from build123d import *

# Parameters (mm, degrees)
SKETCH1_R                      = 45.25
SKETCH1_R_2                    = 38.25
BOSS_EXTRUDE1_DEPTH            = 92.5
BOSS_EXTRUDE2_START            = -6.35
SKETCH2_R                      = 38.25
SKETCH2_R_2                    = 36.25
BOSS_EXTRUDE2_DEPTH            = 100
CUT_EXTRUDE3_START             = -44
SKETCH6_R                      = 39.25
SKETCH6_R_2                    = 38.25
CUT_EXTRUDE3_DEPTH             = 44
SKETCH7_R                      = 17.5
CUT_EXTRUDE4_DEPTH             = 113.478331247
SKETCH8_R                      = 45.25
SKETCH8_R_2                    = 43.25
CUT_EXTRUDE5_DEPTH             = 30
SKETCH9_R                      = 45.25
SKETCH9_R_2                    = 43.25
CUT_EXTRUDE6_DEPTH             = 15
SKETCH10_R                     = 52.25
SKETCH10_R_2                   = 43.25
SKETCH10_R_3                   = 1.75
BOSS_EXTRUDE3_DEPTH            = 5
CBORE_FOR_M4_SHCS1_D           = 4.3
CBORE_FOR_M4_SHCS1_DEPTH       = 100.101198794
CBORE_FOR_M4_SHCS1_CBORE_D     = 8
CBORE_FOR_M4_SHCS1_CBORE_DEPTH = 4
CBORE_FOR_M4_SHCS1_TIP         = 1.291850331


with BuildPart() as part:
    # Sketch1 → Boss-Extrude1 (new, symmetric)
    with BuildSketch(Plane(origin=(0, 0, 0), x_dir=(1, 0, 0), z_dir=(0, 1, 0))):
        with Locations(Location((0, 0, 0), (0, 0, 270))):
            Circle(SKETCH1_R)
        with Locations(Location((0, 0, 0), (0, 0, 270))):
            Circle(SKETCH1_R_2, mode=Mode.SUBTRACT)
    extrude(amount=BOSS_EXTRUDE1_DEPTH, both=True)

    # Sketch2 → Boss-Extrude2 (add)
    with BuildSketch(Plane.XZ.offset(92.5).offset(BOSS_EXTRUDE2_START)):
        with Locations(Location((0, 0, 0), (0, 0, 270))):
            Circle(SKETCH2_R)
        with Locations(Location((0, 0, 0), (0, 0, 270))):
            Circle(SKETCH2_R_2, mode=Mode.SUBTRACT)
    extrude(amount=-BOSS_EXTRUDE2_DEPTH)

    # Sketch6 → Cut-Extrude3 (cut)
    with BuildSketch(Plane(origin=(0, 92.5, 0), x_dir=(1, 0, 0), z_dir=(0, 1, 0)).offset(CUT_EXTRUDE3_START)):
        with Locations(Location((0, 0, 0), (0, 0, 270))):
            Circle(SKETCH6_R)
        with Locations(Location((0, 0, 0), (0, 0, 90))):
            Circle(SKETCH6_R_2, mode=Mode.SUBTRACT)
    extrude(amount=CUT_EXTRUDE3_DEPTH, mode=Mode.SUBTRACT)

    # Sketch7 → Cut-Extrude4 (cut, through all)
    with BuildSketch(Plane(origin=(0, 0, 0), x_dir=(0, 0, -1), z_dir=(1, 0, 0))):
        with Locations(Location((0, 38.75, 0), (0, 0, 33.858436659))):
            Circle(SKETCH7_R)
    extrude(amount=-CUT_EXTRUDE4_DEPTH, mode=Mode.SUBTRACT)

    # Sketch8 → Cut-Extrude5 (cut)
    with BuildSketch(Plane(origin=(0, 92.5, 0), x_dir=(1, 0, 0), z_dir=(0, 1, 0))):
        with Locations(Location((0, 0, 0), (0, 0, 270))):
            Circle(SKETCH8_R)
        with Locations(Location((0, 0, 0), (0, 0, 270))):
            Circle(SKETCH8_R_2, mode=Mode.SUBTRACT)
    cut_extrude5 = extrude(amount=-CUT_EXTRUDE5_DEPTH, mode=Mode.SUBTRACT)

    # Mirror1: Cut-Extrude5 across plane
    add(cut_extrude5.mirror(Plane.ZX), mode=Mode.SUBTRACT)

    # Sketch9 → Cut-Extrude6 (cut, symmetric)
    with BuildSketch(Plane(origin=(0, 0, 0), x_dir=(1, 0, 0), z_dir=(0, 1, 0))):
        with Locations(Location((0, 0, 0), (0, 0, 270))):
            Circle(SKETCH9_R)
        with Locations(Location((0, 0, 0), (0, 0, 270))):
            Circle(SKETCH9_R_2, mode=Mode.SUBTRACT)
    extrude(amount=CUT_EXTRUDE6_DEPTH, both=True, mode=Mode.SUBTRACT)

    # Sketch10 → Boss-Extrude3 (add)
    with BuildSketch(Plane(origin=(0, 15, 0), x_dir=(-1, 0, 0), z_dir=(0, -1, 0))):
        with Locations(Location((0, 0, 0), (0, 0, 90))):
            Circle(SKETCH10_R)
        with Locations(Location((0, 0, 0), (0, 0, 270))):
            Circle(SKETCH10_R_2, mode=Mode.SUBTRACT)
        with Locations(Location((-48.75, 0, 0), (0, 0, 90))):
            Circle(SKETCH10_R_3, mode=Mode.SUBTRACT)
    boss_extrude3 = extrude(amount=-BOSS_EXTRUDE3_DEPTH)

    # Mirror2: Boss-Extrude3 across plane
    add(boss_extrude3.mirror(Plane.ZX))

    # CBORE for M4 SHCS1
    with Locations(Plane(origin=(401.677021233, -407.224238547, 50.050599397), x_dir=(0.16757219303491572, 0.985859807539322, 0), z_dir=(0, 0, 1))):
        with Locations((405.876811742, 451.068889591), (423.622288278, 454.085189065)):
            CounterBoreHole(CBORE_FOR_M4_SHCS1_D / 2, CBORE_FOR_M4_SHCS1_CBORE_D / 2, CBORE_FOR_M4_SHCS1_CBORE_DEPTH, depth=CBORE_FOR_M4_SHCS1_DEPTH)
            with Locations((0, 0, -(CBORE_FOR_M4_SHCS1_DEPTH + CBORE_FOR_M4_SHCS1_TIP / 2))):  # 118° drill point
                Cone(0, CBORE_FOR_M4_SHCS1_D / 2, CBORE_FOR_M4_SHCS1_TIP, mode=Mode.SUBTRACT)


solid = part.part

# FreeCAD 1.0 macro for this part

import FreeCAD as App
import Part
import Sketcher
from FreeCAD import Vector
Q = App.Units.Quantity

doc = App.newDocument("Part")
body = doc.addObject("PartDesign::Body", "Body")

# Sketch on XZ plane
sketch1 = body.newObject("Sketcher::SketchObject", "Sketch")
sketch1.AttachmentSupport = (doc.getObject("XZ_Plane"), [""])
sketch1.MapMode = "FlatFace"
sketch1.addGeometry([
    Part.Circle(Vector(0, 0, 0), Vector(0, 0, 1), 45.25),
    Part.Circle(Vector(0, 0, 0), Vector(0, 0, 1), 38.25),
], False)
sketch1.addConstraint([
    Sketcher.Constraint("Coincident", 0, 3, -1, 1),
    Sketcher.Constraint("Coincident", 1, 3, -1, 1),
    Sketcher.Constraint("Diameter", 0, Q("90.5 mm")),
    Sketcher.Constraint("Diameter", 1, Q("76.5 mm")),
])
pad1 = body.newObject("PartDesign::Pad", "Pad")
pad1.Profile = sketch1
pad1.Length = 185
pad1.Midplane = True

# Sketch on XZ plane
sketch2 = body.newObject("Sketcher::SketchObject", "Sketch001")
sketch2.AttachmentSupport = (doc.getObject("XZ_Plane"), [""])
sketch2.MapMode = "FlatFace"
sketch2.AttachmentOffset = App.Placement(Vector(0, 0, 86.15), App.Rotation())
sketch2.addGeometry([
    Part.Circle(Vector(0, 0, 0), Vector(0, 0, 1), 38.25),
    Part.Circle(Vector(0, 0, 0), Vector(0, 0, 1), 36.25),
], False)
sketch2.addConstraint([
    Sketcher.Constraint("Coincident", 0, 3, -1, 1),
    Sketcher.Constraint("Coincident", 1, 3, -1, 1),
    Sketcher.Constraint("Diameter", 0, Q("76.5 mm")),
    Sketcher.Constraint("Diameter", 1, Q("72.5 mm")),
])
pad2 = body.newObject("PartDesign::Pad", "Pad001")
pad2.Profile = sketch2
pad2.Length = 100
pad2.Reversed = True

# Sketch on XZ plane
sketch3 = body.newObject("Sketcher::SketchObject", "Sketch002")
sketch3.AttachmentSupport = (doc.getObject("XZ_Plane"), [""])
sketch3.MapMode = "FlatFace"
sketch3.AttachmentOffset = App.Placement(Vector(0, 0, -48.5), App.Rotation())
sketch3.addGeometry([
    Part.Circle(Vector(0, 0, 0), Vector(0, 0, 1), 39.25),
    Part.Circle(Vector(0, 0, 0), Vector(0, 0, 1), 38.25),
], False)
sketch3.addConstraint([
    Sketcher.Constraint("Coincident", 0, 3, -1, 1),
    Sketcher.Constraint("Coincident", 1, 3, -1, 1),
    Sketcher.Constraint("Diameter", 0, Q("78.5 mm")),
    Sketcher.Constraint("Diameter", 1, Q("76.5 mm")),
])
pocket1 = body.newObject("PartDesign::Pocket", "Pocket")
pocket1.Profile = sketch3
pocket1.Length = 44

# Sketch on YZ plane
sketch4 = body.newObject("Sketcher::SketchObject", "Sketch003")
sketch4.AttachmentSupport = (doc.getObject("YZ_Plane"), [""])
sketch4.MapMode = "FlatFace"
sketch4.addGeometry(Part.Circle(Vector(38.75, 0, 0), Vector(0, 0, 1), 17.5), False)
sketch4.addConstraint([
    Sketcher.Constraint("PointOnObject", 0, 3, -1),
    Sketcher.Constraint("Diameter", 0, Q("35 mm")),
    Sketcher.Constraint("DistanceX", -1, 1, 0, 3, Q("38.75 mm")),
])
pocket2 = body.newObject("PartDesign::Pocket", "Pocket001")
pocket2.Profile = sketch4
pocket2.Type = "ThroughAll"

# Sketch on XZ plane
sketch5 = body.newObject("Sketcher::SketchObject", "Sketch004")
sketch5.AttachmentSupport = (doc.getObject("XZ_Plane"), [""])
sketch5.MapMode = "FlatFace"
sketch5.AttachmentOffset = App.Placement(Vector(0, 0, -92.5), App.Rotation())
sketch5.addGeometry([
    Part.Circle(Vector(0, 0, 0), Vector(0, 0, 1), 45.25),
    Part.Circle(Vector(0, 0, 0), Vector(0, 0, 1), 43.25),
], False)
sketch5.addConstraint([
    Sketcher.Constraint("Coincident", 0, 3, -1, 1),
    Sketcher.Constraint("Coincident", 1, 3, -1, 1),
    Sketcher.Constraint("Diameter", 0, Q("90.5 mm")),
    Sketcher.Constraint("Diameter", 1, Q("86.5 mm")),
])
pocket3 = body.newObject("PartDesign::Pocket", "Pocket002")
pocket3.Profile = sketch5
pocket3.Length = 30
pocket3.Reversed = True
doc.recompute()

mirrored = body.newObject("PartDesign::Mirrored", "Mirrored")
mirrored.Originals = [pocket3]
mirrored.MirrorPlane = (doc.getObject("XZ_Plane"), [""])
body.Tip = mirrored

# Sketch on XZ plane
sketch6 = body.newObject("Sketcher::SketchObject", "Sketch005")
sketch6.AttachmentSupport = (doc.getObject("XZ_Plane"), [""])
sketch6.MapMode = "FlatFace"
sketch6.addGeometry([
    Part.Circle(Vector(0, 0, 0), Vector(0, 0, 1), 45.25),
    Part.Circle(Vector(0, 0, 0), Vector(0, 0, 1), 43.25),
], False)
sketch6.addConstraint([
    Sketcher.Constraint("Coincident", 0, 3, -1, 1),
    Sketcher.Constraint("Coincident", 1, 3, -1, 1),
    Sketcher.Constraint("Diameter", 0, Q("90.5 mm")),
    Sketcher.Constraint("Diameter", 1, Q("86.5 mm")),
])
pocket4 = body.newObject("PartDesign::Pocket", "Pocket003")
pocket4.Profile = sketch6
pocket4.Length = 30
pocket4.Midplane = True

# Sketch on XZ plane
sketch7 = body.newObject("Sketcher::SketchObject", "Sketch006")
sketch7.AttachmentSupport = (doc.getObject("XZ_Plane"), [""])
sketch7.MapMode = "FlatFace"
sketch7.AttachmentOffset = App.Placement(Vector(0, 0, -15), App.Rotation())
sketch7.addGeometry([
    Part.Circle(Vector(0, 0, 0), Vector(0, 0, 1), 52.25),
    Part.Circle(Vector(0, 0, 0), Vector(0, 0, 1), 43.25),
    Part.Circle(Vector(48.75, 0, 0), Vector(0, 0, 1), 1.75),
], False)
sketch7.addConstraint([
    Sketcher.Constraint("Coincident", 0, 3, -1, 1),
    Sketcher.Constraint("Coincident", 1, 3, -1, 1),
    Sketcher.Constraint("PointOnObject", 2, 3, -1),
    Sketcher.Constraint("Diameter", 0, Q("104.5 mm")),
    Sketcher.Constraint("Diameter", 1, Q("86.5 mm")),
    Sketcher.Constraint("Diameter", 2, Q("3.5 mm")),
    Sketcher.Constraint("DistanceX", -1, 1, 2, 3, Q("48.75 mm")),
])
pad3 = body.newObject("PartDesign::Pad", "Pad002")
pad3.Profile = sketch7
pad3.Length = 5
pad3.Reversed = True
doc.recompute()

mirrored2 = body.newObject("PartDesign::Mirrored", "Mirrored001")
mirrored2.Originals = [pad3]
mirrored2.MirrorPlane = (doc.getObject("XZ_Plane"), [""])
body.Tip = mirrored2

# Sketch on XY plane
sketch8 = body.newObject("Sketcher::SketchObject", "Sketch007")
sketch8.AttachmentSupport = (doc.getObject("XY_Plane"), [""])
sketch8.MapMode = "FlatFace"
sketch8.AttachmentOffset = App.Placement(Vector(0, 0, 50.050599), App.Rotation())
sketch8.addGeometry([
    Part.Circle(Vector(25, 68.5, 0), Vector(0, 0, 1), 2.15),
    Part.Circle(Vector(25, 86.5, 0), Vector(0, 0, 1), 2.15),
], False)
sketch8.addConstraint([
    Sketcher.Constraint("Equal", 0, 1),
    Sketcher.Constraint("Vertical", 0, 3, 1, 3),
    Sketcher.Constraint("Diameter", 0, Q("4.3 mm")),
    Sketcher.Constraint("DistanceX", -1, 1, 0, 3, Q("25 mm")),
    Sketcher.Constraint("DistanceY", 0, 3, 1, 3, Q("18 mm")),
    Sketcher.Constraint("DistanceY", -1, 1, 0, 3, Q("68.5 mm")),
])
doc.recompute()
hole = body.newObject("PartDesign::Hole", "Hole")
hole.Profile = sketch8
hole.ThreadType = "None"
hole.Diameter = 4.3
hole.DepthType = "Dimension"
hole.Depth = 100.101199
hole.DrillPoint = "Angled"
hole.DrillPointAngle = 118
hole.HoleCutType = "Counterbore"
hole.HoleCutDiameter = 8
hole.HoleCutDepth = 4

doc.recompute()
